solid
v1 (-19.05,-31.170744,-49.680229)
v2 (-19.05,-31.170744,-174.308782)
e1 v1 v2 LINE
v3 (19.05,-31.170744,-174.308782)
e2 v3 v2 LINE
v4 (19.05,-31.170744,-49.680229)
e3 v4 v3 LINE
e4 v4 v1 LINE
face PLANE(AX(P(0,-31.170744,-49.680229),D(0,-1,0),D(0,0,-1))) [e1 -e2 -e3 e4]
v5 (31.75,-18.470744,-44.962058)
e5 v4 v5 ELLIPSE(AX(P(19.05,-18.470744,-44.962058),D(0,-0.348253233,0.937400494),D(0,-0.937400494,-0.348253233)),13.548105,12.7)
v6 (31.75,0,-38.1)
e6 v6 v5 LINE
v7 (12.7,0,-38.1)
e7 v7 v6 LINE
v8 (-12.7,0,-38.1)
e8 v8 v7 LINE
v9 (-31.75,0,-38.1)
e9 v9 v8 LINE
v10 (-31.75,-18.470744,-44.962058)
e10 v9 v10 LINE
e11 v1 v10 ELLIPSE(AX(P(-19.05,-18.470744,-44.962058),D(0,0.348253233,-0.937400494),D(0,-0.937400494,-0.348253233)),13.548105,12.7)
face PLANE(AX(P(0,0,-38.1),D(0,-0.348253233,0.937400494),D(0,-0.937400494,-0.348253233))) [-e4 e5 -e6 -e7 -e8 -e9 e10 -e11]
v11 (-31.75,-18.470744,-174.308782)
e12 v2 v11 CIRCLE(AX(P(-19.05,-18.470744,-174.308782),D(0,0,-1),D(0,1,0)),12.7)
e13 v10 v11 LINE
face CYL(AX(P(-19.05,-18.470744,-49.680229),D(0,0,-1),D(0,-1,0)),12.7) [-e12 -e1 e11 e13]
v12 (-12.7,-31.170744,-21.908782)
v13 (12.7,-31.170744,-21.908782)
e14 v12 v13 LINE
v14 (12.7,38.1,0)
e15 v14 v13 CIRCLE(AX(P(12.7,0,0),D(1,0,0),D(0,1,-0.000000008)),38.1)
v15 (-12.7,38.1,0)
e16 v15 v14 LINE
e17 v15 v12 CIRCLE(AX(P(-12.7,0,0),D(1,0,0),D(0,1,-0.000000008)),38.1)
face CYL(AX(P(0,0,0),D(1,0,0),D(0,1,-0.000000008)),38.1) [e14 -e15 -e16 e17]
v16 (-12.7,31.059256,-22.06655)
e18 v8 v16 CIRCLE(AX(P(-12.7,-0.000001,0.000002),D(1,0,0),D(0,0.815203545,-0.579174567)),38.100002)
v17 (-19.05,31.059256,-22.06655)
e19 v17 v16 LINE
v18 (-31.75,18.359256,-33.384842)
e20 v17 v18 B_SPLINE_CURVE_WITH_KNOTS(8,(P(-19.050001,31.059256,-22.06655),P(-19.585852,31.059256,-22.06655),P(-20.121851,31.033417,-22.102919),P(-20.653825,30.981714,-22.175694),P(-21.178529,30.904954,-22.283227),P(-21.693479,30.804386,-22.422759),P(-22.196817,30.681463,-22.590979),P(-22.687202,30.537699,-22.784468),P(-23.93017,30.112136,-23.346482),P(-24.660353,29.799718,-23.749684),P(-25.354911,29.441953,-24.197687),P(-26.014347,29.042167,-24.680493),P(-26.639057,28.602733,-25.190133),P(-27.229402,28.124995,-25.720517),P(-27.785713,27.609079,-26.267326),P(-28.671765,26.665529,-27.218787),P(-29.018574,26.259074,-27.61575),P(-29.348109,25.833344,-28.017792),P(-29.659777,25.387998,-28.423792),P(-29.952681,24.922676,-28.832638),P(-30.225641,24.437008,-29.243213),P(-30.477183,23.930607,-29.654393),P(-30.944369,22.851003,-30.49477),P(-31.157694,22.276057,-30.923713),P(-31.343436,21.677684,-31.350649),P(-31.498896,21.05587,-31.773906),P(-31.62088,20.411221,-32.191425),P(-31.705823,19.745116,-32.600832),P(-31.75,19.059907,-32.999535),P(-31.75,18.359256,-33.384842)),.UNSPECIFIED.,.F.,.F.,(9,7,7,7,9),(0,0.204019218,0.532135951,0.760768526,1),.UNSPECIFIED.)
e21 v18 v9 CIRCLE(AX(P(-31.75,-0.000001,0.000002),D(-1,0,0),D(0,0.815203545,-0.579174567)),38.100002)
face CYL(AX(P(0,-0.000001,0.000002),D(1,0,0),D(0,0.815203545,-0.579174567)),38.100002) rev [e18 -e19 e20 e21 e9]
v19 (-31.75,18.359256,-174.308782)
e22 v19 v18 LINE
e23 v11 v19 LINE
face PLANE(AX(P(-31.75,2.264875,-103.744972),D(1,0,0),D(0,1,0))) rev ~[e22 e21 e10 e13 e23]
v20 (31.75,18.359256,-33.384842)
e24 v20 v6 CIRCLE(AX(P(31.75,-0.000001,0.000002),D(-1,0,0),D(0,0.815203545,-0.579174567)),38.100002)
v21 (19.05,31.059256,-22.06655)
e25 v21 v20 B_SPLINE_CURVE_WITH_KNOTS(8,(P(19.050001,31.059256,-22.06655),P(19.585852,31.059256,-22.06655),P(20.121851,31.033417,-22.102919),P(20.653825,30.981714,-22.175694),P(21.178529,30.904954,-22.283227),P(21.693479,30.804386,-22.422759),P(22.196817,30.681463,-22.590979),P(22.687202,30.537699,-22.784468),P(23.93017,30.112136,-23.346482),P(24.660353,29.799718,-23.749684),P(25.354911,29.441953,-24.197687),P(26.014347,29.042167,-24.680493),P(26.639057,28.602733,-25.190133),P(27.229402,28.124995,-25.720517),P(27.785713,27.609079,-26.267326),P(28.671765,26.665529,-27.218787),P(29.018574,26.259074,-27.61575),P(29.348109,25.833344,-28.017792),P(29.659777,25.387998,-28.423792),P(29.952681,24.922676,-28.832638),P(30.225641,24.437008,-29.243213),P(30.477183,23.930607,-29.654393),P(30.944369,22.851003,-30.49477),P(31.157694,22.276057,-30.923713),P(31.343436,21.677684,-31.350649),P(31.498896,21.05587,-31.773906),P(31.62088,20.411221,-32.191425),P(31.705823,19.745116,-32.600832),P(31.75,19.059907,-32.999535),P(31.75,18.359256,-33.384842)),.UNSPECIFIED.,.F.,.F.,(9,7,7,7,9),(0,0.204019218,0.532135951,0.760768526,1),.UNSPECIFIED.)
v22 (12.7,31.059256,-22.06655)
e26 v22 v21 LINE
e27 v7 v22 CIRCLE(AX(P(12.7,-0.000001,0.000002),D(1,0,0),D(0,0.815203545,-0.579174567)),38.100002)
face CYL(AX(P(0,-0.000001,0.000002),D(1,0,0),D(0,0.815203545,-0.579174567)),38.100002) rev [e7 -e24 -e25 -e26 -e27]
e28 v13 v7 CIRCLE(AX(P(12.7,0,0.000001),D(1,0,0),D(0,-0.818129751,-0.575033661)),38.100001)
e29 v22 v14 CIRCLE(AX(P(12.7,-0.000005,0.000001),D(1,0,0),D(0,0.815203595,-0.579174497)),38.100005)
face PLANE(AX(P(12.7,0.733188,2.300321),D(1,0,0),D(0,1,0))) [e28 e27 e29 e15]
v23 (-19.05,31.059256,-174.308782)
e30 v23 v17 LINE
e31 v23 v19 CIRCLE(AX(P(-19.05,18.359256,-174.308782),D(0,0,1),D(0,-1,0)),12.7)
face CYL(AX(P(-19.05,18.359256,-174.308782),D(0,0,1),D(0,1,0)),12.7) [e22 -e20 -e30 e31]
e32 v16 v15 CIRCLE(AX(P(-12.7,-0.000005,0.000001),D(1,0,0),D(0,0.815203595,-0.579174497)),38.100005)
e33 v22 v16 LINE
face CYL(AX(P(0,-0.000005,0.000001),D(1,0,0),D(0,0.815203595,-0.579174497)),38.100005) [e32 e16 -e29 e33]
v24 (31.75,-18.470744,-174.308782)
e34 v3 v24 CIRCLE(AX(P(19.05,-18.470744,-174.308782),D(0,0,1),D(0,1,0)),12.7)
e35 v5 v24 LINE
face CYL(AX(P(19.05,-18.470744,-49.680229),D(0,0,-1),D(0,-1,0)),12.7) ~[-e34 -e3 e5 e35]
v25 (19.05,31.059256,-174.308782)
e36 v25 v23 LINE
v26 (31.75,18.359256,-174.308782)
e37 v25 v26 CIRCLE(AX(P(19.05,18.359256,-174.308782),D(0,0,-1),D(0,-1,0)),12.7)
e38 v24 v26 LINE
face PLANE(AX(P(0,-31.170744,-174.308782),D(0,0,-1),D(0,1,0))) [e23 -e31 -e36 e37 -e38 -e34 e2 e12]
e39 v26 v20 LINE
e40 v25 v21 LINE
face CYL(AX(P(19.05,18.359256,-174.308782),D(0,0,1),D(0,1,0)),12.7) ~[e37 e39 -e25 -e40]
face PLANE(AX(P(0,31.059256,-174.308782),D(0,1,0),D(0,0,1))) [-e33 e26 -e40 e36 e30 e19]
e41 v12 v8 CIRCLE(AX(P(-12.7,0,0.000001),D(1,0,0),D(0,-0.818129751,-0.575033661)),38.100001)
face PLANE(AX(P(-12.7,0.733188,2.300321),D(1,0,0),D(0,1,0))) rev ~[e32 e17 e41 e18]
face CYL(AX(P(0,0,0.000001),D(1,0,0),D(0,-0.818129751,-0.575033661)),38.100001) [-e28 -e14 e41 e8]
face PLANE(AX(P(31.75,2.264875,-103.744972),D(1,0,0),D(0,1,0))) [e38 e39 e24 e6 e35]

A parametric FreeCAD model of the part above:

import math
import FreeCAD as App
import Part
import Sketcher

V = App.Vector
Q = App.Units.Quantity


def edges_at(feature, points):
    """Names of the edges that pass closest to the given points."""
    edges = feature.Shape.Edges
    near = lambda p: min(range(len(edges)), key=lambda i: edges[i].distToShape(Part.Vertex(*p))[0])
    return sorted({f"Edge{near(p) + 1}" for p in points})

doc = App.newDocument("Part")
body = doc.addObject("PartDesign::Body", "Body")

# Sketch on YZ plane
sketch1 = body.newObject("Sketcher::SketchObject", "Sketch")
sketch1.AttachmentSupport = (doc.getObject("YZ_Plane"), [""])
sketch1.MapMode = "FlatFace"
sketch1.addGeometry([
    Part.ArcOfCircle(Part.Circle(V(-0.000005, 0.000001, 0), V(0, 0, 1), 38.100005), math.radians(-35.392502), math.radians(-0.000002)),  # 0
    Part.ArcOfCircle(Part.Circle(V(0, 0, 0), V(0, 0, 1), 38.1), math.radians(0), math.radians(215.101989)),  # 1
    Part.ArcOfCircle(Part.Circle(V(0, 0.000001, 0), V(0, 0, 1), 38.100001), math.radians(-144.89801), math.radians(-90.000001)),  # 2
    Part.LineSegment(V(0, -38.1, 0), V(-31.170744, -49.680229, 0)),  # 3
    Part.LineSegment(V(-31.170744, -49.680229, 0), V(-31.170744, -174.308782, 0)),  # 4
    Part.LineSegment(V(-31.170744, -174.308782, 0), V(31.059256, -174.308782, 0)),  # 5
    Part.LineSegment(V(31.059256, -174.308782, 0), V(31.059256, -22.06655, 0)),  # 6
], False)
sketch1.addConstraint([
    Sketcher.Constraint("Tangent", 0, 2, 1, 1),
    Sketcher.Constraint("Tangent", 1, 2, 2, 1),
    Sketcher.Constraint("Coincident", 2, 2, 3, 1),
    Sketcher.Constraint("Coincident", 3, 2, 4, 1),
    Sketcher.Constraint("Coincident", 4, 2, 5, 1),
    Sketcher.Constraint("Coincident", 5, 2, 6, 1),
    Sketcher.Constraint("Coincident", 6, 2, 0, 1),
    Sketcher.Constraint("Vertical", 4),
    Sketcher.Constraint("Horizontal", 5),
    Sketcher.Constraint("Vertical", 6),
    Sketcher.Constraint("Coincident", 0, 3, -1, 1),
    Sketcher.Constraint("Coincident", 2, 3, -1, 1),
    Sketcher.Constraint("PointOnObject", 0, 2, -1),
    Sketcher.Constraint("PointOnObject", 2, 2, -2),
    Sketcher.Constraint("Vertical", 1, 2, 3, 2),
    Sketcher.Constraint("Radius", 1, Q("1.5 in")),
    Sketcher.Constraint("DistanceY", 4, 2, 1, 2, Q("6 in")),
    Sketcher.Constraint("DistanceX", 5, 1, 5, 2, Q("2.45 in")),
    Sketcher.Constraint("DistanceY", 6, 1, 6, 2, 152.242232),
    Sketcher.Constraint("DistanceY", 4, 2, 4, 1, 124.628553),
])
pad1 = body.newObject("PartDesign::Pad", "Pad")
pad1.Profile = sketch1
pad1.Length = Q("1 in")
pad1.Midplane = True

# Sketch on YZ plane
sketch2 = body.newObject("Sketcher::SketchObject", "Sketch001")
sketch2.AttachmentSupport = (doc.getObject("YZ_Plane"), [""])
sketch2.MapMode = "FlatFace"
sketch2.addGeometry([
    Part.LineSegment(V(31.059256, -174.308782, 0), V(31.059256, -22.06655, 0)),  # 0
    Part.ArcOfCircle(Part.Circle(V(-0.000001, 0.000002, 0), V(0, 0, 1), 38.100002), math.radians(-89.999998), math.radians(-35.392507)),  # 1
    Part.LineSegment(V(0, -38.1, 0), V(-31.170744, -49.680229, 0)),  # 2
    Part.LineSegment(V(-31.170744, -49.680229, 0), V(-31.170744, -174.308782, 0)),  # 3
    Part.LineSegment(V(-31.170744, -174.308782, 0), V(31.059256, -174.308782, 0)),  # 4
], False)
sketch2.addConstraint([
    Sketcher.Constraint("Coincident", 0, 2, 1, 2),
    Sketcher.Constraint("Coincident", 1, 1, 2, 1),
    Sketcher.Constraint("Coincident", 2, 2, 3, 1),
    Sketcher.Constraint("Coincident", 3, 2, 4, 1),
    Sketcher.Constraint("Coincident", 4, 2, 0, 1),
    Sketcher.Constraint("Vertical", 0),
    Sketcher.Constraint("Vertical", 3),
    Sketcher.Constraint("Horizontal", 4),
    Sketcher.Constraint("Coincident", 1, 3, -1, 1),
    Sketcher.Constraint("PointOnObject", 1, 1, -2),
    Sketcher.Constraint("Radius", 1, Q("1.5000001 in")),
    Sketcher.Constraint("DistanceX", 4, 1, 4, 2, Q("2.45 in")),
    Sketcher.Constraint("DistanceY", 0, 1, 0, 2, 152.242232),
    Sketcher.Constraint("DistanceY", 3, 2, 3, 1, 124.628553),
    Sketcher.Constraint("DistanceY", 0, 2, -1, 1, 22.06655),
])
pad2 = body.newObject("PartDesign::Pad", "Pad001")
pad2.Profile = sketch2
pad2.Length = Q("2.5 in")
pad2.Midplane = True
doc.recompute()

fillet = body.newObject("PartDesign::Fillet", "Fillet")
fillet.Base = (pad2, edges_at(pad2, [
    (31.75, -31.171, -111.995),
    (31.75, 31.059, -98.188),
    (-31.75, -31.171, -111.995),
    (-31.75, 31.059, -98.188),
]))
fillet.Radius = Q("0.5 in")

doc.recompute()
